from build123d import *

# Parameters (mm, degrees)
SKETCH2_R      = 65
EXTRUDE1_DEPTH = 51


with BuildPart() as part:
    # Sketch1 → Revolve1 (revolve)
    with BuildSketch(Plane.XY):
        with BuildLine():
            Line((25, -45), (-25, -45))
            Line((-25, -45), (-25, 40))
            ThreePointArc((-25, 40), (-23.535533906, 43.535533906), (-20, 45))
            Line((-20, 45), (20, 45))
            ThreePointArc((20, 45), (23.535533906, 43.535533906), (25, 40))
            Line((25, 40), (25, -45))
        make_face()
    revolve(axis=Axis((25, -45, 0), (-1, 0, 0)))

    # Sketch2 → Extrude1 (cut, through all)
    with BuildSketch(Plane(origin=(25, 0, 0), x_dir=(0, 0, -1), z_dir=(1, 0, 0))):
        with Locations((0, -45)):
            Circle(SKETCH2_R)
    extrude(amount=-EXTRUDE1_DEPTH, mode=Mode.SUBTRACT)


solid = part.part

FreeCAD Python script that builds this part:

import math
import FreeCAD as App
import Part
import Sketcher

V = App.Vector

doc = App.newDocument("Part")
body = doc.addObject("PartDesign::Body", "Body")

sketch1 = body.newObject("Sketcher::SketchObject", "Sketch")
sketch1.AttachmentSupport = (doc.getObject("XY_Plane"), [""])
sketch1.MapMode = "FlatFace"
sketch1.addGeometry([
    Part.LineSegment(V(-25, -45, 0), V(25, -45, 0)),
    Part.LineSegment(V(25, -45, 0), V(25, 40, 0)),
    Part.ArcOfCircle(Part.Circle(V(20, 40, 0), V(0, 0, 1), 5), math.radians(0), math.radians(90)),
    Part.LineSegment(V(20, 45, 0), V(-20, 45, 0)),
    Part.ArcOfCircle(Part.Circle(V(-20, 40, 0), V(0, 0, 1), 5), math.radians(90), math.radians(180)),
    Part.LineSegment(V(-25, 40, 0), V(-25, -45, 0)),
], False)
sketch1.addGeometry(Part.LineSegment(V(25, -45, 0), V(-25, -45, 0)), True)
sketch1.addConstraint([
    Sketcher.Constraint("Coincident", 0, 2, 1, 1),
    Sketcher.Constraint("Tangent", 1, 2, 2, 1),
    Sketcher.Constraint("Tangent", 2, 2, 3, 1),
    Sketcher.Constraint("Tangent", 3, 2, 4, 1),
    Sketcher.Constraint("Tangent", 4, 2, 5, 1),
    Sketcher.Constraint("Coincident", 5, 2, 0, 1),
    Sketcher.Constraint("Horizontal", 0),
    Sketcher.Constraint("Vertical", 1),
    Sketcher.Constraint("Horizontal", 3),
    Sketcher.Constraint("Vertical", 5),
    Sketcher.Constraint("Horizontal", 6),
    Sketcher.Constraint("Coincident", 6, 1, 0, 2),
    Sketcher.Constraint("Equal", 2, 4),
    Sketcher.Constraint("Vertical", 4, 2, 6, 2),
    Sketcher.Constraint("Radius", 2, 5.0),
    Sketcher.Constraint("DistanceX", 0, 1, 0, 2, 50.0),
    Sketcher.Constraint("DistanceY", 1, 1, 1, 2, 85.0),
    Sketcher.Constraint("DistanceX", -1, 1, 2, 3, 20.0),
    Sketcher.Constraint("DistanceY", -1, 1, 2, 3, 40.0),
])
revolution = body.newObject("PartDesign::Revolution", "Revolution")
revolution.Profile = sketch1
revolution.ReferenceAxis = (sketch1, ["Axis0"])
revolution.Angle = 360

sketch2 = body.newObject("Sketcher::SketchObject", "Sketch001")
sketch2.AttachmentSupport = (doc.getObject("YZ_Plane"), [""])
sketch2.MapMode = "FlatFace"
sketch2.AttachmentOffset = App.Placement(V(0, 0, 25), App.Rotation())
sketch2.addGeometry(Part.Circle(V(-45, 0, 0), V(0, 0, 1), 65), False)
sketch2.addConstraint([
    Sketcher.Constraint("PointOnObject", 0, 3, -1),
    Sketcher.Constraint("Diameter", 0, 130.0),
    Sketcher.Constraint("DistanceX", 0, 3, -1, 1, 45.0),
])
pocket1 = body.newObject("PartDesign::Pocket", "Pocket")
pocket1.Profile = sketch2
pocket1.Type = "ThroughAll"

doc.recompute()
